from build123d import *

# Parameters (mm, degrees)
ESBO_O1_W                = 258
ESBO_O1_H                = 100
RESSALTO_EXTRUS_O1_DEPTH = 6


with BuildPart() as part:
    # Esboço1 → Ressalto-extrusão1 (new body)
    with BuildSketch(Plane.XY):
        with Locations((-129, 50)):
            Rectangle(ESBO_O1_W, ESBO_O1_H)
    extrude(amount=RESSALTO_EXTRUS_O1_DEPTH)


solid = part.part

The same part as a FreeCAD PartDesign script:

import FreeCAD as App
import Part
import Sketcher
from FreeCAD import Vector
Q = App.Units.Quantity


def add_polygon(sketch, points):
    """Adds a closed chain of lines whose ends are joined by coincident constraints."""
    first, n = sketch.GeometryCount, len(points)
    for a, b in zip(points, points[1:] + points[:1]):
        sketch.addGeometry(Part.LineSegment(App.Vector(*a, 0), App.Vector(*b, 0)), False)
    for i in range(n):
        sketch.addConstraint(Sketcher.Constraint("Coincident", first + i, 2, first + (i + 1) % n, 1))

doc = App.newDocument("Part")
body = doc.addObject("PartDesign::Body", "Body")

sketch1 = body.newObject("Sketcher::SketchObject", "Sketch")
sketch1.AttachmentSupport = (doc.getObject("XY_Plane"), [""])
sketch1.MapMode = "FlatFace"
add_polygon(sketch1, [(-258, 100), (-258, 0), (0, 0), (0, 100)])
sketch1.addConstraint([
    Sketcher.Constraint("Vertical", 0),
    Sketcher.Constraint("Horizontal", 1),
    Sketcher.Constraint("Vertical", 2),
    Sketcher.Constraint("Horizontal", 3),
    Sketcher.Constraint("Coincident", 1, 2, -1, 1),
    Sketcher.Constraint("DistanceX", 1, 1, 1, 2, Q("258 mm")),
    Sketcher.Constraint("DistanceY", 0, 2, 0, 1, Q("100 mm")),
])
pad1 = body.newObject("PartDesign::Pad", "Pad")
pad1.Profile = sketch1
pad1.Length = 6

doc.recompute()
